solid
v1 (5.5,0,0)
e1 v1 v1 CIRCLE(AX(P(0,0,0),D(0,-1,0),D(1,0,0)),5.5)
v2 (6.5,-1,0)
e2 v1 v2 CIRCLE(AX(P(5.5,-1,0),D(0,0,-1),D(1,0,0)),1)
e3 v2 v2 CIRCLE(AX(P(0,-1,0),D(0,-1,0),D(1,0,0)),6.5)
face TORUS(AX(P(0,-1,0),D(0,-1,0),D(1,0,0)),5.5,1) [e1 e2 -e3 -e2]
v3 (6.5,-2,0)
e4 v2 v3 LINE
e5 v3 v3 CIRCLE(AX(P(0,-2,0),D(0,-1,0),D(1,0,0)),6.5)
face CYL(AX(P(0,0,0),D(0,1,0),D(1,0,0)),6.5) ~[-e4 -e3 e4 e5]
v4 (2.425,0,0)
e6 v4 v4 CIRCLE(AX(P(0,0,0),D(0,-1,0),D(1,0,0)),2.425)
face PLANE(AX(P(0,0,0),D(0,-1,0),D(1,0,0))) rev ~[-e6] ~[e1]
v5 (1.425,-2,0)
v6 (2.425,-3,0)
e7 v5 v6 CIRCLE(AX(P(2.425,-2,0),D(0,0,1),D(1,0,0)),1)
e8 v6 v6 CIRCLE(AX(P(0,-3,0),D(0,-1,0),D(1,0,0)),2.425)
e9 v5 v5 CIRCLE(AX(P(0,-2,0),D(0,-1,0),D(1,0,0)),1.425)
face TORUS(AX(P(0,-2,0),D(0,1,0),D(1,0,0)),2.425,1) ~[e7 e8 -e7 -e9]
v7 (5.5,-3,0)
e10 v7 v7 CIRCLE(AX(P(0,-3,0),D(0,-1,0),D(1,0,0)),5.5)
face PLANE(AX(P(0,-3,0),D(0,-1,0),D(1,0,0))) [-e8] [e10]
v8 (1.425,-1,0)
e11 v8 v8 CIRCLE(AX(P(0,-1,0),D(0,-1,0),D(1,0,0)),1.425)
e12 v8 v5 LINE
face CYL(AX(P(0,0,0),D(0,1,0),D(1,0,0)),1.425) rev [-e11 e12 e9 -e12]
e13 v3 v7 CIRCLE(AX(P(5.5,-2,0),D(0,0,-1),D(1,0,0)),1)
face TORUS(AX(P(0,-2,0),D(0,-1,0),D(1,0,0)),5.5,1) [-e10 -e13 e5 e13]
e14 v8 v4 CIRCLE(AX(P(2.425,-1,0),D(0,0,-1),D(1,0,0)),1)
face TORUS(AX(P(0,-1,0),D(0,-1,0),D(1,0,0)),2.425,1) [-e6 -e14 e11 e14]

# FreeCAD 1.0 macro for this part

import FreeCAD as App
import Part
import Sketcher
from FreeCAD import Vector


def edges_at(feature, points):
    """Names of the edges that pass closest to the given points."""
    edges = feature.Shape.Edges
    near = lambda p: min(range(len(edges)), key=lambda i: edges[i].distToShape(Part.Vertex(*p))[0])
    return sorted({f"Edge{near(p) + 1}" for p in points})

doc = App.newDocument("Part")
body = doc.addObject("PartDesign::Body", "Body")

# Sketch on XZ plane
sketch1 = body.newObject("Sketcher::SketchObject", "Sketch")
sketch1.AttachmentSupport = (doc.getObject("XZ_Plane"), [""])
sketch1.MapMode = "FlatFace"
sketch1.addGeometry([
    Part.Circle(Vector(0, 0, 0), Vector(0, 0, 1), 6.5),
    Part.Circle(Vector(0, 0, 0), Vector(0, 0, 1), 1.4),
], False)
sketch1.addConstraint([
    Sketcher.Constraint("Coincident", 0, 3, -1, 1),
    Sketcher.Constraint("Coincident", 1, 3, -1, 1),
    Sketcher.Constraint("Diameter", 0, 13.0),
    Sketcher.Constraint("Diameter", 1, 2.85),
])
pad1 = body.newObject("PartDesign::Pad", "Pad")
pad1.Profile = sketch1
pad1.Length = 3
doc.recompute()

fillet = body.newObject("PartDesign::Fillet", "Fillet")
fillet.Base = (pad1, edges_at(pad1, [(-1.425, -3, 0)]))
fillet.Radius = 1
doc.recompute()

fillet2 = body.newObject("PartDesign::Fillet", "Fillet001")
fillet2.Base = (fillet, edges_at(fillet, [(-1.425, 0, 0)]))
fillet2.Radius = 1
doc.recompute()

fillet3 = body.newObject("PartDesign::Fillet", "Fillet002")
fillet3.Base = (fillet2, edges_at(fillet2, [(-6.5, 0, 0)]))
fillet3.Radius = 1
doc.recompute()

fillet4 = body.newObject("PartDesign::Fillet", "Fillet003")
fillet4.Base = (fillet3, edges_at(fillet3, [(-6.5, -3, 0)]))
fillet4.Radius = 1

doc.recompute()
